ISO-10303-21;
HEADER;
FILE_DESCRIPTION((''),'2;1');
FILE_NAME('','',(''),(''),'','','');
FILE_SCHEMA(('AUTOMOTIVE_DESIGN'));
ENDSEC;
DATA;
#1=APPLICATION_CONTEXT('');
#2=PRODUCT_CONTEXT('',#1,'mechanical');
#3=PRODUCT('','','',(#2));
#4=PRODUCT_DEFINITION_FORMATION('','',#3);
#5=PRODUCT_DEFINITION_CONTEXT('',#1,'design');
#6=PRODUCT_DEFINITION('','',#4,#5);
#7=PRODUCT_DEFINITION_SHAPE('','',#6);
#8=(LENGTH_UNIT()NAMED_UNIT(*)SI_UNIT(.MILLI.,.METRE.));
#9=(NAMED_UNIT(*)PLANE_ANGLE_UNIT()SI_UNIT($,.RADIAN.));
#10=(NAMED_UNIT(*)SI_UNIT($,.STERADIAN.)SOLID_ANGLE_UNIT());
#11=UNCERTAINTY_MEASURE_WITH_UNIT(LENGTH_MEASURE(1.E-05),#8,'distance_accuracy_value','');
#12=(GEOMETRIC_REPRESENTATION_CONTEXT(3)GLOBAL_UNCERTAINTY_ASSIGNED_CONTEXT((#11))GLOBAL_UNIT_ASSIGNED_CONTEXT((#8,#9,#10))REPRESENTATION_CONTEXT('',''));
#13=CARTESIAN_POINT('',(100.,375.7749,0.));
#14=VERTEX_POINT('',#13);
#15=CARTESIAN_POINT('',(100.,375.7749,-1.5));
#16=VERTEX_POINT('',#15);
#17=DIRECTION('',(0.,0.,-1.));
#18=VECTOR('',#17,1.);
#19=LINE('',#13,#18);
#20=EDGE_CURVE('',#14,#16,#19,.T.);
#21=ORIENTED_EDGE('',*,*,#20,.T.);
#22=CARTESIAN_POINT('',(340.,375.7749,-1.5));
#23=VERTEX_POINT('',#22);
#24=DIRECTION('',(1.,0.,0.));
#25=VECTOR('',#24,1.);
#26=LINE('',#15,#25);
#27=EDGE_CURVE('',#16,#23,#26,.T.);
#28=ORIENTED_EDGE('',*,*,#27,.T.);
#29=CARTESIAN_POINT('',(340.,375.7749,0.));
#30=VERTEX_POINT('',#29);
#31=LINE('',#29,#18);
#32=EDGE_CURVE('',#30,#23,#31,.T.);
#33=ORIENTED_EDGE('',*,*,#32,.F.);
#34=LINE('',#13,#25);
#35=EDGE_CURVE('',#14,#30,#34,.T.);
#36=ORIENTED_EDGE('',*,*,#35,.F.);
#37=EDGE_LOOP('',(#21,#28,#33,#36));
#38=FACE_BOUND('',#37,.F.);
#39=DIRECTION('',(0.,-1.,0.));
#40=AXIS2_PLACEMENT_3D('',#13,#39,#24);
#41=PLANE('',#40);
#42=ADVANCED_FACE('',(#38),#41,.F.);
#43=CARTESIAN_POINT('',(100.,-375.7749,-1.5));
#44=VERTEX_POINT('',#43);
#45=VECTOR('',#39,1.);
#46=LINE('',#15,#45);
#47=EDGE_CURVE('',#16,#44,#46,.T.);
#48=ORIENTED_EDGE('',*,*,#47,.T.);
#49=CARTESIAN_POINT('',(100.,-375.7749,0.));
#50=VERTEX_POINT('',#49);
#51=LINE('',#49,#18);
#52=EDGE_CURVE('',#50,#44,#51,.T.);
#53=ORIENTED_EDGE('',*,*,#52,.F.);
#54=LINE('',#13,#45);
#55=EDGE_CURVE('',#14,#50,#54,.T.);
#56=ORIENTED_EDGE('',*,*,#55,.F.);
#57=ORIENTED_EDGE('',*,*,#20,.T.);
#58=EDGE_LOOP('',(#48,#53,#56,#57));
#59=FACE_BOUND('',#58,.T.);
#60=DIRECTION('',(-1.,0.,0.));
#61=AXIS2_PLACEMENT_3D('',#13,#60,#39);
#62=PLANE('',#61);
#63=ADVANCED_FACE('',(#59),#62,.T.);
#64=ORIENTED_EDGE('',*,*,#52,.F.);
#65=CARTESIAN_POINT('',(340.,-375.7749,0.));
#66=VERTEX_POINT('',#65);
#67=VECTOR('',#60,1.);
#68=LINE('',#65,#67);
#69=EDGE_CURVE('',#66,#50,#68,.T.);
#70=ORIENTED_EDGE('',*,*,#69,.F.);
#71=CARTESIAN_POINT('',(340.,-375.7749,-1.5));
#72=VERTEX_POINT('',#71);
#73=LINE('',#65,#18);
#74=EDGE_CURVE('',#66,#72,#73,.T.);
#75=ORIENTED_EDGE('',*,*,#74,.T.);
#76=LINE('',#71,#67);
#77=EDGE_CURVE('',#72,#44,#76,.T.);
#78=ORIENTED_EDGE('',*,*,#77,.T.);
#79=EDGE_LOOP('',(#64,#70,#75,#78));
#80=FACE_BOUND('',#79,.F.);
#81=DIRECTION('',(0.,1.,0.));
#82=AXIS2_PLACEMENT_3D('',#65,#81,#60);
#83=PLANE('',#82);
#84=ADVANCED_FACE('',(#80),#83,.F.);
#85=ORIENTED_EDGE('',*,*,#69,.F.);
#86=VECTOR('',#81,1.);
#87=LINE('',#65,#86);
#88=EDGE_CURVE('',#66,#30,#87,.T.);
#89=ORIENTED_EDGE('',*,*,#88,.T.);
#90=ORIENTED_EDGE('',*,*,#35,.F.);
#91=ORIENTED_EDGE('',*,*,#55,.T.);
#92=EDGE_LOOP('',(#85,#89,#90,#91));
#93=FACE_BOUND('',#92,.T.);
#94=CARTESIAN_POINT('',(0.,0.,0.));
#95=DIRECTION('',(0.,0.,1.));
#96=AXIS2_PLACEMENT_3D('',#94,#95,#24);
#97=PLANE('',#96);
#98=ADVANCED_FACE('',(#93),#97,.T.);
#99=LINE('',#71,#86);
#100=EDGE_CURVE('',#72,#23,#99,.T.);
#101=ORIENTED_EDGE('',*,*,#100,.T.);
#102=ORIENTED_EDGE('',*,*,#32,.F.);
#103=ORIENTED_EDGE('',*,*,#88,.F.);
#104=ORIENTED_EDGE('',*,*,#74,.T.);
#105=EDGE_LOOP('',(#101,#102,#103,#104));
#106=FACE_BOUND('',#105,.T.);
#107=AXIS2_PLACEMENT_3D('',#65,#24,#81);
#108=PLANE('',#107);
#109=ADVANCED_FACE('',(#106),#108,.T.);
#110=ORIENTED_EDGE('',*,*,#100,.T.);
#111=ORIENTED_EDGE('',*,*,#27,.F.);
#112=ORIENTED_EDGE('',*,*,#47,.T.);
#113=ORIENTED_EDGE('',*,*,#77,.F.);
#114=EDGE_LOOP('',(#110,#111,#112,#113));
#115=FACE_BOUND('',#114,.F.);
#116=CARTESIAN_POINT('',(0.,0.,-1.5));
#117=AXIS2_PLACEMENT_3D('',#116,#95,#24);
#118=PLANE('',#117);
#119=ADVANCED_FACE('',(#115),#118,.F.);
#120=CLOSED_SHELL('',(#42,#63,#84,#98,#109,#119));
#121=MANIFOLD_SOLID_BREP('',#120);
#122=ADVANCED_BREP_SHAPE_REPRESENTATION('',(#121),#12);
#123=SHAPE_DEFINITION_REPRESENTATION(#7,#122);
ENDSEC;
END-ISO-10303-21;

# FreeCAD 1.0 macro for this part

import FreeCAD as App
import Part
import Sketcher

V = App.Vector
Q = App.Units.Quantity

doc = App.newDocument("Part")
body = doc.addObject("PartDesign::Body", "Body")

sketch1 = doc.addObject("Sketcher::SketchObject", "Sketch")
body.addObject(sketch1)
sketch1.AttachmentSupport = (doc.XY_Plane, [""])
sketch1.MapMode = "FlatFace"
sketch1.addGeometry([
    Part.LineSegment(V(100, -376, 0), V(340, -376, 0)),
    Part.LineSegment(V(340, -376, 0), V(340, 376, 0)),
    Part.LineSegment(V(340, 376, 0), V(100, 376, 0)),
    Part.LineSegment(V(100, 376, 0), V(100, -376, 0)),
], False)
sketch1.addConstraint([
    Sketcher.Constraint("Coincident", 0, 2, 1, 1),
    Sketcher.Constraint("Coincident", 1, 2, 2, 1),
    Sketcher.Constraint("Coincident", 2, 2, 3, 1),
    Sketcher.Constraint("Coincident", 3, 2, 0, 1),
    Sketcher.Constraint("Horizontal", 0),
    Sketcher.Constraint("Vertical", 1),
    Sketcher.Constraint("Horizontal", 2),
    Sketcher.Constraint("Vertical", 3),
    Sketcher.Constraint("DistanceX", 0, 1, 0, 2, Q("240 mm")),
    Sketcher.Constraint("DistanceX", -1, 1, 0, 2, Q("340 mm")),
    Sketcher.Constraint("DistanceY", 1, 1, 1, 2, Q("751.5498 mm")),
    Sketcher.Constraint("DistanceY", 0, 2, -1, 1, Q("375.775 mm")),
])
pad1 = doc.addObject("PartDesign::Pad", "Pad")
body.addObject(pad1)
pad1.Profile = sketch1
pad1.Length = 1.5
pad1.Reversed = True

doc.recompute()
